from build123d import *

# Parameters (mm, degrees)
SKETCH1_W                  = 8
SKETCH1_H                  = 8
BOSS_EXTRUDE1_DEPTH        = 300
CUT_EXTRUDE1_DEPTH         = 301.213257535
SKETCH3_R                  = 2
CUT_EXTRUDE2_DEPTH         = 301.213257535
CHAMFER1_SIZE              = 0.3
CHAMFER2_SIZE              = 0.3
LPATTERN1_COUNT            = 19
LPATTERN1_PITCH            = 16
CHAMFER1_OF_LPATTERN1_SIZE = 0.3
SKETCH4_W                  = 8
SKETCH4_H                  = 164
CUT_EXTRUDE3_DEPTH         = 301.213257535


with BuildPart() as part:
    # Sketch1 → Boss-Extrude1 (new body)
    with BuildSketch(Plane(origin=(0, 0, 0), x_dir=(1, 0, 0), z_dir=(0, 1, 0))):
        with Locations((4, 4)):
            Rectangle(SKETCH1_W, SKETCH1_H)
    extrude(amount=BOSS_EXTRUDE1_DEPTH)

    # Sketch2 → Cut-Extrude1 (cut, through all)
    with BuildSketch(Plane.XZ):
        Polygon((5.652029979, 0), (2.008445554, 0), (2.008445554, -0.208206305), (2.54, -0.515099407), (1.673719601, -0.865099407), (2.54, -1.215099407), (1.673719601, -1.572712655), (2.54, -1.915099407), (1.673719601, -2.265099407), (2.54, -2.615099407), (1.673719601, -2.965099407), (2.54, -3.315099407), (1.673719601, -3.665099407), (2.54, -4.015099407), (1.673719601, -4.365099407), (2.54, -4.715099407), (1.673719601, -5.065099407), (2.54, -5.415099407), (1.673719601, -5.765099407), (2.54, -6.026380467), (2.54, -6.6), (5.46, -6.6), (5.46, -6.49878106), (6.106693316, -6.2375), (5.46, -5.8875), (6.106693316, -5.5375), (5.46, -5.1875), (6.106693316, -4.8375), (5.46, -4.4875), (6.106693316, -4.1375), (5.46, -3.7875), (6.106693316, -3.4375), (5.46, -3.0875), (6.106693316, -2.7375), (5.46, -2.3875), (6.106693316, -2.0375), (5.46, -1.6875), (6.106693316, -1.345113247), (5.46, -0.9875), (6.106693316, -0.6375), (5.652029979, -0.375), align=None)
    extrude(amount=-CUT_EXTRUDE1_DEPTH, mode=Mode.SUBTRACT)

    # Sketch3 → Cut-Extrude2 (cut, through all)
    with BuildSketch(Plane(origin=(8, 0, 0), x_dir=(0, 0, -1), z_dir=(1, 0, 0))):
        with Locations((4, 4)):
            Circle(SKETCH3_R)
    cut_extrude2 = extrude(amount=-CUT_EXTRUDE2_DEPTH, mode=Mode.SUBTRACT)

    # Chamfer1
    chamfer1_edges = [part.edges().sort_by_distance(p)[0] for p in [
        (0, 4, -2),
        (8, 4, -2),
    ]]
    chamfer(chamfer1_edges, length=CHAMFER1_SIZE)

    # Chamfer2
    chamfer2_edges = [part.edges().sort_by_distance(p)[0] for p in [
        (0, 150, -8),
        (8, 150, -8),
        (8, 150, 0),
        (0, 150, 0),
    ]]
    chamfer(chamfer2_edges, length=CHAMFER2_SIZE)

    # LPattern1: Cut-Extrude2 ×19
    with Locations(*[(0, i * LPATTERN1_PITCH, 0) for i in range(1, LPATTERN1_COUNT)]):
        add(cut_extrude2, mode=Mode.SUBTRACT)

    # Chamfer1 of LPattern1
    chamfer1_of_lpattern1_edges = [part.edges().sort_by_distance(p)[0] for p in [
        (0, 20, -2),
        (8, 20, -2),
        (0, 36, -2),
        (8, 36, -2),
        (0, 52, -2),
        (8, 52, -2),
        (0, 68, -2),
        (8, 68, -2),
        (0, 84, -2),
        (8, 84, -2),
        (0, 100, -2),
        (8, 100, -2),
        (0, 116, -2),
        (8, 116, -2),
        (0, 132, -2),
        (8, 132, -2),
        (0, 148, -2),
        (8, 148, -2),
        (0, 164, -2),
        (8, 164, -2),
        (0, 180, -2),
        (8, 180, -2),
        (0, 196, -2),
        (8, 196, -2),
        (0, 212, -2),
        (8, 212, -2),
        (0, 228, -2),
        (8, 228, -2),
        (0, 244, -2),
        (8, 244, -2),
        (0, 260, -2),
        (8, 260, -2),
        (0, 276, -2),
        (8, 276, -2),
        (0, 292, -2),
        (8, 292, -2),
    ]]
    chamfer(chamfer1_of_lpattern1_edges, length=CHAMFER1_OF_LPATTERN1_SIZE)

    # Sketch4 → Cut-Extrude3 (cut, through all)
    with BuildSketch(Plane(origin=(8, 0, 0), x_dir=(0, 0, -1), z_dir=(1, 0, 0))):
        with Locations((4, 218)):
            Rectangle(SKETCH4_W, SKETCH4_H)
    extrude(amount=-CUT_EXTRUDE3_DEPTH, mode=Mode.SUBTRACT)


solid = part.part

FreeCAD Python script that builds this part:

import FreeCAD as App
import Part
import Sketcher
from FreeCAD import Vector
Q = App.Units.Quantity


def edges_at(feature, points):
    """Names of the edges that pass closest to the given points."""
    edges = feature.Shape.Edges
    near = lambda p: min(range(len(edges)), key=lambda i: edges[i].distToShape(Part.Vertex(*p))[0])
    return sorted({f"Edge{near(p) + 1}" for p in points})

doc = App.newDocument("Part")
body = doc.addObject("PartDesign::Body", "Body")

# Sketch on XZ plane
sketch1 = body.newObject("Sketcher::SketchObject", "Sketch")
sketch1.AttachmentSupport = (doc.getObject("XZ_Plane"), [""])
sketch1.MapMode = "FlatFace"
sketch1.addGeometry(Part.LineSegment(Vector(0, -8, 0), Vector(0, 0, 0)), False)
sketch1.addGeometry(Part.LineSegment(Vector(0, 0, 0), Vector(8, 0, 0)), False)
sketch1.addGeometry(Part.LineSegment(Vector(8, 0, 0), Vector(8, -8, 0)), False)
sketch1.addGeometry(Part.LineSegment(Vector(8, -8, 0), Vector(0, -8, 0)), False)
sketch1.addConstraint(Sketcher.Constraint("Coincident", 0, 2, 1, 1))
sketch1.addConstraint(Sketcher.Constraint("Coincident", 1, 2, 2, 1))
sketch1.addConstraint(Sketcher.Constraint("Coincident", 2, 2, 3, 1))
sketch1.addConstraint(Sketcher.Constraint("Coincident", 3, 2, 0, 1))
sketch1.addConstraint(Sketcher.Constraint("Vertical", 0))
sketch1.addConstraint(Sketcher.Constraint("Horizontal", 1))
sketch1.addConstraint(Sketcher.Constraint("Vertical", 2))
sketch1.addConstraint(Sketcher.Constraint("Horizontal", 3))
sketch1.addConstraint(Sketcher.Constraint("Coincident", 0, 2, -1, 1))
sketch1.addConstraint(Sketcher.Constraint("Equal", 3, 0))
sketch1.addConstraint(Sketcher.Constraint("DistanceX", 1, 1, 1, 2, 8.0))
pad1 = body.newObject("PartDesign::Pad", "Pad")
pad1.Profile = sketch1
pad1.Length = 300
pad1.Reversed = True

# Sketch on XZ plane
sketch2 = body.newObject("Sketcher::SketchObject", "Sketch001")
sketch2.AttachmentSupport = (doc.getObject("XZ_Plane"), [""])
sketch2.MapMode = "FlatFace"
sketch2.addGeometry(Part.LineSegment(Vector(5.65, 0, 0), Vector(2.01, 0, 0)), False)
sketch2.addGeometry(Part.LineSegment(Vector(2.01, 0, 0), Vector(2.01, -0.21, 0)), False)
sketch2.addGeometry(Part.LineSegment(Vector(2.01, -0.21, 0), Vector(2.54, -0.52, 0)), False)
sketch2.addGeometry(Part.LineSegment(Vector(2.54, -0.52, 0), Vector(1.67, -0.87, 0)), False)
sketch2.addGeometry(Part.LineSegment(Vector(1.67, -0.87, 0), Vector(2.54, -1.22, 0)), False)
sketch2.addGeometry(Part.LineSegment(Vector(2.54, -1.22, 0), Vector(1.67, -1.57, 0)), False)
sketch2.addGeometry(Part.LineSegment(Vector(1.67, -1.57, 0), Vector(2.54, -1.92, 0)), False)
sketch2.addGeometry(Part.LineSegment(Vector(2.54, -1.92, 0), Vector(1.67, -2.27, 0)), False)
sketch2.addGeometry(Part.LineSegment(Vector(1.67, -2.27, 0), Vector(2.54, -2.62, 0)), False)
sketch2.addGeometry(Part.LineSegment(Vector(2.54, -2.62, 0), Vector(1.67, -2.97, 0)), False)
sketch2.addGeometry(Part.LineSegment(Vector(1.67, -2.97, 0), Vector(2.54, -3.32, 0)), False)
sketch2.addGeometry(Part.LineSegment(Vector(2.54, -3.32, 0), Vector(1.67, -3.67, 0)), False)
sketch2.addGeometry(Part.LineSegment(Vector(1.67, -3.67, 0), Vector(2.54, -4.02, 0)), False)
sketch2.addGeometry(Part.LineSegment(Vector(2.54, -4.02, 0), Vector(1.67, -4.37, 0)), False)
sketch2.addGeometry(Part.LineSegment(Vector(1.67, -4.37, 0), Vector(2.54, -4.72, 0)), False)
sketch2.addGeometry(Part.LineSegment(Vector(2.54, -4.72, 0), Vector(1.67, -5.07, 0)), False)
sketch2.addGeometry(Part.LineSegment(Vector(1.67, -5.07, 0), Vector(2.54, -5.42, 0)), False)
sketch2.addGeometry(Part.LineSegment(Vector(2.54, -5.42, 0), Vector(1.67, -5.77, 0)), False)
sketch2.addGeometry(Part.LineSegment(Vector(1.67, -5.77, 0), Vector(2.54, -6.03, 0)), False)
sketch2.addGeometry(Part.LineSegment(Vector(2.54, -6.03, 0), Vector(2.54, -6.6, 0)), False)
sketch2.addGeometry(Part.LineSegment(Vector(2.54, -6.6, 0), Vector(5.46, -6.6, 0)), False)
sketch2.addGeometry(Part.LineSegment(Vector(5.46, -6.6, 0), Vector(5.46, -6.5, 0)), False)
sketch2.addGeometry(Part.LineSegment(Vector(5.46, -6.5, 0), Vector(6.11, -6.24, 0)), False)
sketch2.addGeometry(Part.LineSegment(Vector(6.11, -6.24, 0), Vector(5.46, -5.89, 0)), False)
sketch2.addGeometry(Part.LineSegment(Vector(5.46, -5.89, 0), Vector(6.11, -5.54, 0)), False)
sketch2.addGeometry(Part.LineSegment(Vector(6.11, -5.54, 0), Vector(5.46, -5.19, 0)), False)
sketch2.addGeometry(Part.LineSegment(Vector(5.46, -5.19, 0), Vector(6.11, -4.84, 0)), False)
sketch2.addGeometry(Part.LineSegment(Vector(6.11, -4.84, 0), Vector(5.46, -4.49, 0)), False)
sketch2.addGeometry(Part.LineSegment(Vector(5.46, -4.49, 0), Vector(6.11, -4.14, 0)), False)
sketch2.addGeometry(Part.LineSegment(Vector(6.11, -4.14, 0), Vector(5.46, -3.79, 0)), False)
sketch2.addGeometry(Part.LineSegment(Vector(5.46, -3.79, 0), Vector(6.11, -3.44, 0)), False)
sketch2.addGeometry(Part.LineSegment(Vector(6.11, -3.44, 0), Vector(5.46, -3.09, 0)), False)
sketch2.addGeometry(Part.LineSegment(Vector(5.46, -3.09, 0), Vector(6.11, -2.74, 0)), False)
sketch2.addGeometry(Part.LineSegment(Vector(6.11, -2.74, 0), Vector(5.46, -2.39, 0)), False)
sketch2.addGeometry(Part.LineSegment(Vector(5.46, -2.39, 0), Vector(6.11, -2.04, 0)), False)
sketch2.addGeometry(Part.LineSegment(Vector(6.11, -2.04, 0), Vector(5.46, -1.69, 0)), False)
sketch2.addGeometry(Part.LineSegment(Vector(5.46, -1.69, 0), Vector(6.11, -1.35, 0)), False)
sketch2.addGeometry(Part.LineSegment(Vector(6.11, -1.35, 0), Vector(5.46, -0.99, 0)), False)
sketch2.addGeometry(Part.LineSegment(Vector(5.46, -0.99, 0), Vector(6.11, -0.64, 0)), False)
sketch2.addGeometry(Part.LineSegment(Vector(6.11, -0.64, 0), Vector(5.65, -0.38, 0)), False)
sketch2.addGeometry(Part.LineSegment(Vector(5.65, -0.38, 0), Vector(5.65, 0, 0)), False)
sketch2.addConstraint(Sketcher.Constraint("Coincident", 0, 2, 1, 1))
sketch2.addConstraint(Sketcher.Constraint("Coincident", 1, 2, 2, 1))
sketch2.addConstraint(Sketcher.Constraint("Coincident", 2, 2, 3, 1))
sketch2.addConstraint(Sketcher.Constraint("Coincident", 3, 2, 4, 1))
sketch2.addConstraint(Sketcher.Constraint("Coincident", 4, 2, 5, 1))
sketch2.addConstraint(Sketcher.Constraint("Coincident", 5, 2, 6, 1))
sketch2.addConstraint(Sketcher.Constraint("Coincident", 6, 2, 7, 1))
sketch2.addConstraint(Sketcher.Constraint("Coincident", 7, 2, 8, 1))
sketch2.addConstraint(Sketcher.Constraint("Coincident", 8, 2, 9, 1))
sketch2.addConstraint(Sketcher.Constraint("Coincident", 9, 2, 10, 1))
sketch2.addConstraint(Sketcher.Constraint("Coincident", 10, 2, 11, 1))
sketch2.addConstraint(Sketcher.Constraint("Coincident", 11, 2, 12, 1))
sketch2.addConstraint(Sketcher.Constraint("Coincident", 12, 2, 13, 1))
sketch2.addConstraint(Sketcher.Constraint("Coincident", 13, 2, 14, 1))
sketch2.addConstraint(Sketcher.Constraint("Coincident", 14, 2, 15, 1))
sketch2.addConstraint(Sketcher.Constraint("Coincident", 15, 2, 16, 1))
sketch2.addConstraint(Sketcher.Constraint("Coincident", 16, 2, 17, 1))
sketch2.addConstraint(Sketcher.Constraint("Coincident", 17, 2, 18, 1))
sketch2.addConstraint(Sketcher.Constraint("Coincident", 18, 2, 19, 1))
sketch2.addConstraint(Sketcher.Constraint("Coincident", 19, 2, 20, 1))
sketch2.addConstraint(Sketcher.Constraint("Coincident", 20, 2, 21, 1))
sketch2.addConstraint(Sketcher.Constraint("Coincident", 21, 2, 22, 1))
sketch2.addConstraint(Sketcher.Constraint("Coincident", 22, 2, 23, 1))
sketch2.addConstraint(Sketcher.Constraint("Coincident", 23, 2, 24, 1))
sketch2.addConstraint(Sketcher.Constraint("Coincident", 24, 2, 25, 1))
sketch2.addConstraint(Sketcher.Constraint("Coincident", 25, 2, 26, 1))
sketch2.addConstraint(Sketcher.Constraint("Coincident", 26, 2, 27, 1))
sketch2.addConstraint(Sketcher.Constraint("Coincident", 27, 2, 28, 1))
sketch2.addConstraint(Sketcher.Constraint("Coincident", 28, 2, 29, 1))
sketch2.addConstraint(Sketcher.Constraint("Coincident", 29, 2, 30, 1))
sketch2.addConstraint(Sketcher.Constraint("Coincident", 30, 2, 31, 1))
sketch2.addConstraint(Sketcher.Constraint("Coincident", 31, 2, 32, 1))
sketch2.addConstraint(Sketcher.Constraint("Coincident", 32, 2, 33, 1))
sketch2.addConstraint(Sketcher.Constraint("Coincident", 33, 2, 34, 1))
sketch2.addConstraint(Sketcher.Constraint("Coincident", 34, 2, 35, 1))
sketch2.addConstraint(Sketcher.Constraint("Coincident", 35, 2, 36, 1))
sketch2.addConstraint(Sketcher.Constraint("Coincident", 36, 2, 37, 1))
sketch2.addConstraint(Sketcher.Constraint("Coincident", 37, 2, 38, 1))
sketch2.addConstraint(Sketcher.Constraint("Coincident", 38, 2, 39, 1))
sketch2.addConstraint(Sketcher.Constraint("Coincident", 39, 2, 40, 1))
sketch2.addConstraint(Sketcher.Constraint("Coincident", 40, 2, 0, 1))
sketch2.addConstraint(Sketcher.Constraint("Horizontal", 0))
sketch2.addConstraint(Sketcher.Constraint("Vertical", 1))
sketch2.addConstraint(Sketcher.Constraint("Vertical", 19))
sketch2.addConstraint(Sketcher.Constraint("Horizontal", 20))
sketch2.addConstraint(Sketcher.Constraint("Vertical", 21))
sketch2.addConstraint(Sketcher.Constraint("Vertical", 40))
sketch2.addConstraint(Sketcher.Constraint("PointOnObject", 0, 2, -1))
sketch2.addConstraint(Sketcher.Constraint("Parallel", 3, 7))
sketch2.addConstraint(Sketcher.Constraint("Parallel", 4, 8))
sketch2.addConstraint(Sketcher.Constraint("Parallel", 7, 9))
sketch2.addConstraint(Sketcher.Constraint("Parallel", 8, 10))
sketch2.addConstraint(Sketcher.Constraint("Parallel", 9, 11))
sketch2.addConstraint(Sketcher.Constraint("Parallel", 10, 12))
sketch2.addConstraint(Sketcher.Constraint("Parallel", 11, 13))
sketch2.addConstraint(Sketcher.Constraint("Parallel", 12, 14))
sketch2.addConstraint(Sketcher.Constraint("Parallel", 13, 15))
sketch2.addConstraint(Sketcher.Constraint("Parallel", 14, 16))
sketch2.addConstraint(Sketcher.Constraint("Parallel", 15, 17))
sketch2.addConstraint(Sketcher.Constraint("Parallel", 17, 22))
sketch2.addConstraint(Sketcher.Constraint("Parallel", 23, 25))
sketch2.addConstraint(Sketcher.Constraint("Parallel", 24, 26))
sketch2.addConstraint(Sketcher.Constraint("Parallel", 25, 27))
sketch2.addConstraint(Sketcher.Constraint("Parallel", 26, 28))
sketch2.addConstraint(Sketcher.Constraint("Parallel", 27, 29))
sketch2.addConstraint(Sketcher.Constraint("Parallel", 28, 30))
sketch2.addConstraint(Sketcher.Constraint("Parallel", 29, 31))
sketch2.addConstraint(Sketcher.Constraint("Parallel", 30, 32))
sketch2.addConstraint(Sketcher.Constraint("Parallel", 31, 33))
sketch2.addConstraint(Sketcher.Constraint("Parallel", 32, 34))
sketch2.addConstraint(Sketcher.Constraint("Parallel", 33, 35))
sketch2.addConstraint(Sketcher.Constraint("Parallel", 34, 38))
sketch2.addConstraint(Sketcher.Constraint("Parallel", 2, 39))
sketch2.addConstraint(Sketcher.Constraint("Vertical", 2, 2, 4, 2))
sketch2.addConstraint(Sketcher.Constraint("Vertical", 3, 2, 5, 2))
sketch2.addConstraint(Sketcher.Constraint("Vertical", 4, 2, 6, 2))
sketch2.addConstraint(Sketcher.Constraint("Vertical", 5, 2, 7, 2))
sketch2.addConstraint(Sketcher.Constraint("Vertical", 6, 2, 8, 2))
sketch2.addConstraint(Sketcher.Constraint("Vertical", 7, 2, 9, 2))
sketch2.addConstraint(Sketcher.Constraint("Vertical", 8, 2, 10, 2))
sketch2.addConstraint(Sketcher.Constraint("Vertical", 9, 2, 11, 2))
sketch2.addConstraint(Sketcher.Constraint("Vertical", 10, 2, 12, 2))
sketch2.addConstraint(Sketcher.Constraint("Vertical", 11, 2, 13, 2))
sketch2.addConstraint(Sketcher.Constraint("Vertical", 12, 2, 14, 2))
sketch2.addConstraint(Sketcher.Constraint("Vertical", 13, 2, 15, 2))
sketch2.addConstraint(Sketcher.Constraint("Vertical", 14, 2, 16, 2))
sketch2.addConstraint(Sketcher.Constraint("Vertical", 15, 2, 17, 2))
sketch2.addConstraint(Sketcher.Constraint("Vertical", 16, 2, 18, 2))
sketch2.addConstraint(Sketcher.Constraint("Vertical", 21, 2, 23, 2))
sketch2.addConstraint(Sketcher.Constraint("Vertical", 22, 2, 24, 2))
sketch2.addConstraint(Sketcher.Constraint("Vertical", 23, 2, 25, 2))
sketch2.addConstraint(Sketcher.Constraint("Vertical", 24, 2, 26, 2))
sketch2.addConstraint(Sketcher.Constraint("Vertical", 25, 2, 27, 2))
sketch2.addConstraint(Sketcher.Constraint("Vertical", 26, 2, 28, 2))
sketch2.addConstraint(Sketcher.Constraint("Vertical", 27, 2, 29, 2))
sketch2.addConstraint(Sketcher.Constraint("Vertical", 28, 2, 30, 2))
sketch2.addConstraint(Sketcher.Constraint("Vertical", 29, 2, 31, 2))
sketch2.addConstraint(Sketcher.Constraint("Vertical", 30, 2, 32, 2))
sketch2.addConstraint(Sketcher.Constraint("Vertical", 31, 2, 33, 2))
sketch2.addConstraint(Sketcher.Constraint("Vertical", 32, 2, 34, 2))
sketch2.addConstraint(Sketcher.Constraint("Vertical", 33, 2, 35, 2))
sketch2.addConstraint(Sketcher.Constraint("Vertical", 34, 2, 36, 2))
sketch2.addConstraint(Sketcher.Constraint("Vertical", 35, 2, 37, 2))
sketch2.addConstraint(Sketcher.Constraint("Vertical", 36, 2, 38, 2))
sketch2.addConstraint(Sketcher.Constraint("Equal", 3, 4))
sketch2.addConstraint(Sketcher.Constraint("Equal", 23, 24))
sketch2.addConstraint(Sketcher.Constraint("Angle", 2, Q("-30 deg")))
sketch2.addConstraint(Sketcher.Constraint("Angle", 3, Q("-158 deg")))
sketch2.addConstraint(Sketcher.Constraint("DistanceX", 20, 1, 20, 2, 2.92))
sketch2.addConstraint(Sketcher.Constraint("DistanceY", 19, 2, -1, 1, 6.6))
sketch2.addConstraint(Sketcher.Constraint("DistanceY", 4, 2, 2, 2, 0.7))
sketch2.addConstraint(Sketcher.Constraint("DistanceY", 6, 2, 4, 2, 0.7))
sketch2.addConstraint(Sketcher.Constraint("DistanceY", 22, 2, 24, 2, 0.7))
sketch2.addConstraint(Sketcher.Constraint("DistanceY", 35, 2, 37, 2, 0.7))
sketch2.addConstraint(Sketcher.Constraint("DistanceY", 40, 1, 40, 2, 0.375))
sketch2.addConstraint(Sketcher.Constraint("DistanceX", -1, 1, 2, 2, 2.54))
sketch2.addConstraint(Sketcher.Constraint("Distance", 39, 0.525))
sketch2.addConstraint(Sketcher.Constraint("DistanceY", 19, 2, 19, 1, 0.57362))
sketch2.addConstraint(Sketcher.Constraint("DistanceY", 21, 1, 21, 2, 0.101219))
sketch2.addConstraint(Sketcher.Constraint("DistanceY", 2, 2, -1, 1, 0.515099))
sketch2.addConstraint(Sketcher.Constraint("Distance", 6, 0.931488))
sketch2.addConstraint(Sketcher.Constraint("Distance", 36, 0.731738))
sketch2.addConstraint(Sketcher.Constraint("DistanceX", 0, 2, 0, 1, 3.643584))
pocket1 = body.newObject("PartDesign::Pocket", "Pocket")
pocket1.Profile = sketch2
pocket1.Type = "ThroughAll"

# Sketch on YZ plane
sketch3 = body.newObject("Sketcher::SketchObject", "Sketch002")
sketch3.AttachmentSupport = (doc.getObject("YZ_Plane"), [""])
sketch3.MapMode = "FlatFace"
sketch3.AttachmentOffset = App.Placement(Vector(0, 0, 8), App.Rotation())
sketch3.addGeometry(Part.Circle(Vector(4, -4, 0), Vector(0, 0, 1), 2), False)
sketch3.addConstraint(Sketcher.Constraint("Diameter", 0, 4.0))
sketch3.addConstraint(Sketcher.Constraint("DistanceX", -1, 1, 0, 3, 4.0))
sketch3.addConstraint(Sketcher.Constraint("DistanceY", 0, 3, -1, 1, 4.0))
pocket2 = body.newObject("PartDesign::Pocket", "Pocket001")
pocket2.Profile = sketch3
pocket2.Type = "ThroughAll"
doc.recompute()

chamfer = body.newObject("PartDesign::Chamfer", "Chamfer")
chamfer.Base = (pocket2, edges_at(pocket2, [(0, 4, -2), (8, 4, -2)]))
chamfer.Size = 0.3
doc.recompute()

chamfer2 = body.newObject("PartDesign::Chamfer", "Chamfer001")
chamfer2.Base = (chamfer, edges_at(chamfer, [
    (0, 150, -8),
    (8, 150, -8),
    (8, 150, 0),
    (0, 150, 0),
]))
chamfer2.Size = 0.3
doc.recompute()

linearpattern = body.newObject("PartDesign::LinearPattern", "LinearPattern")
linearpattern.Originals = [pocket2]
linearpattern.Direction = (doc.getObject("Y_Axis"), [""])
linearpattern.Mode = "offset"
linearpattern.Offset = 16
linearpattern.Occurrences = 19
body.Tip = linearpattern
doc.recompute()

chamfer3 = body.newObject("PartDesign::Chamfer", "Chamfer002")
chamfer3.Base = (linearpattern, edges_at(linearpattern, [
    (0, 20, -2),
    (8, 20, -2),
    (0, 36, -2),
    (8, 36, -2),
    (0, 52, -2),
    (8, 52, -2),
    (0, 68, -2),
    (8, 68, -2),
    (0, 84, -2),
    (8, 84, -2),
    (0, 100, -2),
    (8, 100, -2),
    (0, 116, -2),
    (8, 116, -2),
    (0, 132, -2),
    (8, 132, -2),
    (0, 148, -2),
    (8, 148, -2),
    (0, 164, -2),
    (8, 164, -2),
    (0, 180, -2),
    (8, 180, -2),
    (0, 196, -2),
    (8, 196, -2),
    (0, 212, -2),
    (8, 212, -2),
    (0, 228, -2),
    (8, 228, -2),
    (0, 244, -2),
    (8, 244, -2),
    (0, 260, -2),
    (8, 260, -2),
    (0, 276, -2),
    (8, 276, -2),
    (0, 292, -2),
    (8, 292, -2),
]))
chamfer3.Size = 0.3

# Sketch on YZ plane
sketch4 = body.newObject("Sketcher::SketchObject", "Sketch003")
sketch4.AttachmentSupport = (doc.getObject("YZ_Plane"), [""])
sketch4.MapMode = "FlatFace"
sketch4.AttachmentOffset = App.Placement(Vector(0, 0, 8), App.Rotation())
sketch4.addGeometry(Part.LineSegment(Vector(300, 0, 0), Vector(136, 0, 0)), False)
sketch4.addGeometry(Part.LineSegment(Vector(136, 0, 0), Vector(136, -8, 0)), False)
sketch4.addGeometry(Part.LineSegment(Vector(136, -8, 0), Vector(300, -8, 0)), False)
sketch4.addGeometry(Part.LineSegment(Vector(300, -8, 0), Vector(300, 0, 0)), False)
sketch4.addConstraint(Sketcher.Constraint("Coincident", 0, 2, 1, 1))
sketch4.addConstraint(Sketcher.Constraint("Coincident", 1, 2, 2, 1))
sketch4.addConstraint(Sketcher.Constraint("Coincident", 2, 2, 3, 1))
sketch4.addConstraint(Sketcher.Constraint("Coincident", 3, 2, 0, 1))
sketch4.addConstraint(Sketcher.Constraint("Horizontal", 0))
sketch4.addConstraint(Sketcher.Constraint("Vertical", 1))
sketch4.addConstraint(Sketcher.Constraint("Horizontal", 2))
sketch4.addConstraint(Sketcher.Constraint("Vertical", 3))
sketch4.addConstraint(Sketcher.Constraint("PointOnObject", 0, 2, -1))
sketch4.addConstraint(Sketcher.Constraint("DistanceX", 0, 2, 0, 1, 164.0))
sketch4.addConstraint(Sketcher.Constraint("DistanceY", 1, 2, 1, 1, 8.0))
sketch4.addConstraint(Sketcher.Constraint("DistanceX", -1, 1, 0, 2, 136.0))
pocket3 = body.newObject("PartDesign::Pocket", "Pocket002")
pocket3.Profile = sketch4
pocket3.Type = "ThroughAll"

doc.recompute()
